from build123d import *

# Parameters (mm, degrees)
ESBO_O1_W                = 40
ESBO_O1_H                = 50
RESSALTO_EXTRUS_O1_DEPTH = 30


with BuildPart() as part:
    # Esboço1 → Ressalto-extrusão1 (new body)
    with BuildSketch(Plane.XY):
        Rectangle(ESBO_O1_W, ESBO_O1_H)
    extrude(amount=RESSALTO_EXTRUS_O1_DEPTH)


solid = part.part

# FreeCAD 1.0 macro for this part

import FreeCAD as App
import Part
import Sketcher
from FreeCAD import Vector


def add_polygon(sketch, points):
    """Adds a closed chain of lines whose ends are joined by coincident constraints."""
    first, n = sketch.GeometryCount, len(points)
    for a, b in zip(points, points[1:] + points[:1]):
        sketch.addGeometry(Part.LineSegment(App.Vector(*a, 0), App.Vector(*b, 0)), False)
    for i in range(n):
        sketch.addConstraint(Sketcher.Constraint("Coincident", first + i, 2, first + (i + 1) % n, 1))

doc = App.newDocument("Part")
body = doc.addObject("PartDesign::Body", "Body")

# Sketch on XY plane
sketch1 = body.newObject("Sketcher::SketchObject", "Sketch")
sketch1.AttachmentSupport = (doc.getObject("XY_Plane"), [""])
sketch1.MapMode = "FlatFace"
add_polygon(sketch1, [(-20, 25), (-20, -25), (20, -25), (20, 25)])  # lines 0-3
sketch1.addConstraint(Sketcher.Constraint("Vertical", 0))
sketch1.addConstraint(Sketcher.Constraint("Horizontal", 1))
sketch1.addConstraint(Sketcher.Constraint("Vertical", 2))
sketch1.addConstraint(Sketcher.Constraint("Horizontal", 3))
sketch1.addConstraint(Sketcher.Constraint("Symmetric", 0, 2, 2, 2, -1, 1))
sketch1.addConstraint(Sketcher.Constraint("DistanceX", 1, 1, 1, 2, 40.0))
sketch1.addConstraint(Sketcher.Constraint("DistanceY", 0, 2, 0, 1, 50.0))
pad1 = body.newObject("PartDesign::Pad", "Pad")
pad1.Profile = sketch1
pad1.Length = 30

doc.recompute()
